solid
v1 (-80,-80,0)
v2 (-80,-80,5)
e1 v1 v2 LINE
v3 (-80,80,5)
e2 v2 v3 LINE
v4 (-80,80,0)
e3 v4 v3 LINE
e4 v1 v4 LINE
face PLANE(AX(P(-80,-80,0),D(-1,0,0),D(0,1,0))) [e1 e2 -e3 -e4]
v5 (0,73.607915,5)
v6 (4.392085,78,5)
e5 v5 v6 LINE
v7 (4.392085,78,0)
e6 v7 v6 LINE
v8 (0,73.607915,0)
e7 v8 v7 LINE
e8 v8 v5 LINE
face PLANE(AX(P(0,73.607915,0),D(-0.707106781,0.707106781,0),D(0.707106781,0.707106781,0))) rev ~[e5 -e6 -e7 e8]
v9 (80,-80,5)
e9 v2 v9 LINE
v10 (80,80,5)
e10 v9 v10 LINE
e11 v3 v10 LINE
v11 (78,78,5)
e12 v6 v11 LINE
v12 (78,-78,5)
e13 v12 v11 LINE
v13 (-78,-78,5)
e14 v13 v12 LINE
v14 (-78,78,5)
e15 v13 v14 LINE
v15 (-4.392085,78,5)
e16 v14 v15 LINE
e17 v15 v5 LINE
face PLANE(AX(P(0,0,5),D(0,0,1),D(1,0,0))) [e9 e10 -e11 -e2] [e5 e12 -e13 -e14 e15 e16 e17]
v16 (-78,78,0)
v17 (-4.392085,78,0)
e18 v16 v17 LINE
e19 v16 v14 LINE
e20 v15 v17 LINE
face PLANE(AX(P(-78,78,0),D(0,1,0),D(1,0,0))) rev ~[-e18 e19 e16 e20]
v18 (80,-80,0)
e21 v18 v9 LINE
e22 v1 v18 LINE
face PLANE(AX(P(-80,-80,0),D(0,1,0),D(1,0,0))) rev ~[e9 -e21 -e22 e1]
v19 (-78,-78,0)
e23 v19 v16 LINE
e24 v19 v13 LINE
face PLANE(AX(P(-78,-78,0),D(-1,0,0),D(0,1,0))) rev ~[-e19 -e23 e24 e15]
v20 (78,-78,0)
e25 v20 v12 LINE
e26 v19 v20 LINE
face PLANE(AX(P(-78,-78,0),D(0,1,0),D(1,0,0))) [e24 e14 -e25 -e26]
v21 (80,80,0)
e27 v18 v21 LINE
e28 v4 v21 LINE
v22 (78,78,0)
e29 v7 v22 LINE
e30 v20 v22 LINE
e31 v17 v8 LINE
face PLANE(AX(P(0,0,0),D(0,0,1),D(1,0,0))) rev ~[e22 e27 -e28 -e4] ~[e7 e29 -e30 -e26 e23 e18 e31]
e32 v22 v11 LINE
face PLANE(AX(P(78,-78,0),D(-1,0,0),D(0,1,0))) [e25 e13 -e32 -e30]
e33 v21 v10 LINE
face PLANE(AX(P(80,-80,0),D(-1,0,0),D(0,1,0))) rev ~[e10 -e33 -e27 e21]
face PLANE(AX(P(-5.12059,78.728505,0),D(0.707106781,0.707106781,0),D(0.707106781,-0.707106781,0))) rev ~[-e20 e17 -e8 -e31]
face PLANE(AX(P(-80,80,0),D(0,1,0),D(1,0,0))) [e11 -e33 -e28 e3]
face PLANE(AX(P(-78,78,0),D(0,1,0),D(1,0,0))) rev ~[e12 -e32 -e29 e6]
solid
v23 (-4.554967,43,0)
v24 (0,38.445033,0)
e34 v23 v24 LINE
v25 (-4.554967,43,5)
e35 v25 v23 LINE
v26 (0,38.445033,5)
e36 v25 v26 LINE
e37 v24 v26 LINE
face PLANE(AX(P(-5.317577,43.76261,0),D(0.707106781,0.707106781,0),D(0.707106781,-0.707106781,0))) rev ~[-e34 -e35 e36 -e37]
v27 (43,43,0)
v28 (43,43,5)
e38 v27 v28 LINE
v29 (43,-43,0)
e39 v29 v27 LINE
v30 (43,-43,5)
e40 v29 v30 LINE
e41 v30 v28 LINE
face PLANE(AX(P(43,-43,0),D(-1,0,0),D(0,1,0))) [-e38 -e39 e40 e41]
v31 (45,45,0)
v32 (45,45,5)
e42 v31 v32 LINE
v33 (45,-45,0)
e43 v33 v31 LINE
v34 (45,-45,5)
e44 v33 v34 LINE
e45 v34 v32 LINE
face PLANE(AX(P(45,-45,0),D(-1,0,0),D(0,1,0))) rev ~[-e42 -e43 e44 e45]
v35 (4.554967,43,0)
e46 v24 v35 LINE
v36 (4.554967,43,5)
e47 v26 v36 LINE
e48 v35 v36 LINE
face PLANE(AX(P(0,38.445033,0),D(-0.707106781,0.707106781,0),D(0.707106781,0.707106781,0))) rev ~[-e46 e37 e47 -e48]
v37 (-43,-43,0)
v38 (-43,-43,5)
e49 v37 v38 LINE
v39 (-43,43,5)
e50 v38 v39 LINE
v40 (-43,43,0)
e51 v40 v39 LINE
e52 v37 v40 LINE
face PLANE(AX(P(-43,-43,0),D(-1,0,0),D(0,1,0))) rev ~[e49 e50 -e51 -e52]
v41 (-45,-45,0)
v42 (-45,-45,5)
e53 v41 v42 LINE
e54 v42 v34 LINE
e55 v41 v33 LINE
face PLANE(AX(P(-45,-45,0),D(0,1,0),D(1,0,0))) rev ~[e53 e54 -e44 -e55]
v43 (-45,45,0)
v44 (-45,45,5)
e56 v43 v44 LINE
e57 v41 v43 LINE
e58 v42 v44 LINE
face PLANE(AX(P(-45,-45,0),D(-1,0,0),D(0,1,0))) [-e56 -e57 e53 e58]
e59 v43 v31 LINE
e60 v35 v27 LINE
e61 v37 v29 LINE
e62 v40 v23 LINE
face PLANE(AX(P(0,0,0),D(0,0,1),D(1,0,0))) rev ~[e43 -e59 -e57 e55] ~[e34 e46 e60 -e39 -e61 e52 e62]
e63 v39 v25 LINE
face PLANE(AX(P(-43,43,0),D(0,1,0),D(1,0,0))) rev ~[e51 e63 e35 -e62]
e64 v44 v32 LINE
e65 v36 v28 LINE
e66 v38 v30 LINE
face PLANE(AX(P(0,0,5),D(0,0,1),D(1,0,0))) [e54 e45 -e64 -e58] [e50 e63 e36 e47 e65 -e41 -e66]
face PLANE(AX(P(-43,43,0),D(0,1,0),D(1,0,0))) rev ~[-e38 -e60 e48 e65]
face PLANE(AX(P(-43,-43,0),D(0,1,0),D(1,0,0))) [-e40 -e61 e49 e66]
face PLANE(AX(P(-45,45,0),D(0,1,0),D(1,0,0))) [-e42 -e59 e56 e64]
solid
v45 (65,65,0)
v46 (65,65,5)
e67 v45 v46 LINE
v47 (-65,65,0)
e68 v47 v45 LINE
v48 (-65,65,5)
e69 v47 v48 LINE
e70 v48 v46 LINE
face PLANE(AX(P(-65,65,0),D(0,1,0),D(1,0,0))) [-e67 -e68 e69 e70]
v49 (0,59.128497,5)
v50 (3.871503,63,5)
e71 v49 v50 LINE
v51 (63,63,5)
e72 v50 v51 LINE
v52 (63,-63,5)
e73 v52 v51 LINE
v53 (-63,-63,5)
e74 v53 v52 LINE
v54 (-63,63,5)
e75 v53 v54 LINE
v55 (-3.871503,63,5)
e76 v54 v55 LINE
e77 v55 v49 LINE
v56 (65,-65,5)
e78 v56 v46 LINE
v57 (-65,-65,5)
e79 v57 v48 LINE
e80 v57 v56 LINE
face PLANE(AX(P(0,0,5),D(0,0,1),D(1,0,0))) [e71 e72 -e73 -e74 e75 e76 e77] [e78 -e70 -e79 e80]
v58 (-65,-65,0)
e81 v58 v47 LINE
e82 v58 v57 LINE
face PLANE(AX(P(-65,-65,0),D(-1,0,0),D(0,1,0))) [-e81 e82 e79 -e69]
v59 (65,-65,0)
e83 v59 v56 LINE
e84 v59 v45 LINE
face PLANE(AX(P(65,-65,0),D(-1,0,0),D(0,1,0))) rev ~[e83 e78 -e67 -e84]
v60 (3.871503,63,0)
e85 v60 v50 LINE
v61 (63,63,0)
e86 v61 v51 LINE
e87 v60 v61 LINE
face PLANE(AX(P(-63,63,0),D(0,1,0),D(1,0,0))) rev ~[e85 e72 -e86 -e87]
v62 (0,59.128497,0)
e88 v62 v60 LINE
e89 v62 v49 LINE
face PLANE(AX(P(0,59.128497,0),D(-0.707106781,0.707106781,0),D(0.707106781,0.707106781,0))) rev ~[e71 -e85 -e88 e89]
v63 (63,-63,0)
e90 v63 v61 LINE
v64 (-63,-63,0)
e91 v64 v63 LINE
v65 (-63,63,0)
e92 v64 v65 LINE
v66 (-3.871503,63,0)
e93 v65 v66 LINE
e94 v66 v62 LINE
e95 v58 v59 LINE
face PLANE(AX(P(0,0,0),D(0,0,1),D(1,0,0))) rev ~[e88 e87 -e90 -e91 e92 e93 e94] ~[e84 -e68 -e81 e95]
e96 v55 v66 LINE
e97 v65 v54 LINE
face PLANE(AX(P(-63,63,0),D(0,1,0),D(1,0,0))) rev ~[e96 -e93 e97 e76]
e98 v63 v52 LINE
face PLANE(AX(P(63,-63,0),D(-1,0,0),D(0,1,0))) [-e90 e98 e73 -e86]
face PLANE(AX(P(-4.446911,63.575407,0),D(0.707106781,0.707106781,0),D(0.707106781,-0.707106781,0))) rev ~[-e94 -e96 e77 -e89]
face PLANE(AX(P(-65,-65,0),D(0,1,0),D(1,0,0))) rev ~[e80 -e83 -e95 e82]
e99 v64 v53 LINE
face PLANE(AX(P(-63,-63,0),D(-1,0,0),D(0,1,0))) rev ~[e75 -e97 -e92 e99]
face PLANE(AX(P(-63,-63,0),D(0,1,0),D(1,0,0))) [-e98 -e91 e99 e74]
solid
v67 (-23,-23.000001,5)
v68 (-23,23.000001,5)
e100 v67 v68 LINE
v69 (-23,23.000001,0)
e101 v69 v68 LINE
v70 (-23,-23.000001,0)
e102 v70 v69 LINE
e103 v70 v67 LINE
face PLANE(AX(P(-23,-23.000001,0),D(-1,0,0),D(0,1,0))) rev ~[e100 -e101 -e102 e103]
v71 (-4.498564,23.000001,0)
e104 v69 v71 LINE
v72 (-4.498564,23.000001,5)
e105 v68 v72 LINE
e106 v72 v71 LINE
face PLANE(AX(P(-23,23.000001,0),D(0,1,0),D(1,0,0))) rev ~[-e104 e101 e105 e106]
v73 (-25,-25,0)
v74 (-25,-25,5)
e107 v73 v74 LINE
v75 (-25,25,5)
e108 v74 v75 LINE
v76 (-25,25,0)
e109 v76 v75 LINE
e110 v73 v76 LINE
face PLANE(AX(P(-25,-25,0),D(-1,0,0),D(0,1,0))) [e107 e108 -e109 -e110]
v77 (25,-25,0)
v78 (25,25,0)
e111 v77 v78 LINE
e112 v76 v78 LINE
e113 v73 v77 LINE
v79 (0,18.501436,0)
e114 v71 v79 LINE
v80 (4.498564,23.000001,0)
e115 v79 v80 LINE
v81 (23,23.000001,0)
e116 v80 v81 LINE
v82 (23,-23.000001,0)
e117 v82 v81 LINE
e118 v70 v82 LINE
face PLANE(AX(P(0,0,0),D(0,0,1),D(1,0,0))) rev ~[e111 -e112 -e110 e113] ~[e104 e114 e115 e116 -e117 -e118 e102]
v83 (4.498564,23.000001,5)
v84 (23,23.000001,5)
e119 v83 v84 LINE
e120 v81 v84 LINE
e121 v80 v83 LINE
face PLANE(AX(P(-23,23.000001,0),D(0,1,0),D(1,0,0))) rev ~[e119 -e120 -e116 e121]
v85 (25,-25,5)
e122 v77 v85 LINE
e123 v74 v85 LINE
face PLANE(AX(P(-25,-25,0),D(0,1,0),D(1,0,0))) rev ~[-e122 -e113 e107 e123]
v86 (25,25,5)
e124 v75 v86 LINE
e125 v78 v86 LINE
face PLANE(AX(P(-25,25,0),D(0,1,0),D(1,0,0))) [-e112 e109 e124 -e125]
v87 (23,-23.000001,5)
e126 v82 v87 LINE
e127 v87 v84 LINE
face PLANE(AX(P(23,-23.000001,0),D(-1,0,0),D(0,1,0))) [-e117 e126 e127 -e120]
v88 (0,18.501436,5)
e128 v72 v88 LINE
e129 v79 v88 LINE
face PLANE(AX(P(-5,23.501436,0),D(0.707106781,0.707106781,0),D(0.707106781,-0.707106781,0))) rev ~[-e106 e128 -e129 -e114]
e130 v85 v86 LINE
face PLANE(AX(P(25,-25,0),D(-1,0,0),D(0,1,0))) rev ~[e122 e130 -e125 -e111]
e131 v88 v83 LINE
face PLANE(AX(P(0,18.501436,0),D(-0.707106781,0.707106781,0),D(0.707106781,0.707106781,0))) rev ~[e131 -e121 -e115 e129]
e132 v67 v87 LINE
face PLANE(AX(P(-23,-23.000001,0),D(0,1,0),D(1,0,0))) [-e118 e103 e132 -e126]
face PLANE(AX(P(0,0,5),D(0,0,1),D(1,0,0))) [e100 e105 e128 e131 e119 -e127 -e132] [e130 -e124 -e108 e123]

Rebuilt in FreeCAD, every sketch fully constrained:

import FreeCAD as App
import Part
import Sketcher

V = App.Vector
Q = App.Units.Quantity

doc = App.newDocument("Part")
body = doc.addObject("PartDesign::Body", "Body")

sketch1 = body.newObject("Sketcher::SketchObject", "Sketch")
sketch1.AttachmentSupport = (doc.getObject("XY_Plane"), [""])
sketch1.MapMode = "FlatFace"
sketch1.addGeometry([
    Part.LineSegment(V(-80, 80, 0), V(-80, -80, 0)),
    Part.LineSegment(V(-80, -80, 0), V(80, -80, 0)),
    Part.LineSegment(V(80, -80, 0), V(80, 80, 0)),
    Part.LineSegment(V(80, 80, 0), V(-80, 80, 0)),
    Part.LineSegment(V(78, -78, 0), V(-78, -78, 0)),
    Part.LineSegment(V(-78, -78, 0), V(-78, 78, 0)),
    Part.LineSegment(V(-78, 78, 0), V(78, 78, 0)),
    Part.LineSegment(V(78, 78, 0), V(78, -78, 0)),
], False)
sketch1.addConstraint([
    Sketcher.Constraint("Coincident", 0, 2, 1, 1),
    Sketcher.Constraint("Coincident", 1, 2, 2, 1),
    Sketcher.Constraint("Coincident", 2, 2, 3, 1),
    Sketcher.Constraint("Coincident", 3, 2, 0, 1),
    Sketcher.Constraint("Coincident", 4, 2, 5, 1),
    Sketcher.Constraint("Coincident", 5, 2, 6, 1),
    Sketcher.Constraint("Coincident", 6, 2, 7, 1),
    Sketcher.Constraint("Coincident", 7, 2, 4, 1),
    Sketcher.Constraint("Vertical", 0),
    Sketcher.Constraint("Horizontal", 1),
    Sketcher.Constraint("Vertical", 2),
    Sketcher.Constraint("Horizontal", 3),
    Sketcher.Constraint("Horizontal", 4),
    Sketcher.Constraint("Vertical", 5),
    Sketcher.Constraint("Horizontal", 6),
    Sketcher.Constraint("Vertical", 7),
    Sketcher.Constraint("Symmetric", 0, 2, 2, 2, -1, 1),
    Sketcher.Constraint("Symmetric", 4, 2, 6, 2, -1, 1),
    Sketcher.Constraint("Equal", 3, 0),
    Sketcher.Constraint("Equal", 6, 5),
    Sketcher.Constraint("DistanceX", 1, 1, 1, 2, Q("160 mm")),
    Sketcher.Constraint("DistanceX", 4, 2, 4, 1, Q("156 mm")),
])
pad1 = body.newObject("PartDesign::Pad", "Pad")
pad1.Profile = sketch1
pad1.Length = 5

sketch2 = body.newObject("Sketcher::SketchObject", "Sketch001")
sketch2.AttachmentSupport = (doc.getObject("XY_Plane"), [""])
sketch2.MapMode = "FlatFace"
sketch2.addGeometry([
    Part.LineSegment(V(0, 78.607915, 0), V(-5.12059, 78.728505, 0)),
    Part.LineSegment(V(-5.12059, 78.728505, 0), V(0, 73.607915, 0)),
    Part.LineSegment(V(0, 73.607915, 0), V(5, 78.607915, 0)),
    Part.LineSegment(V(5, 78.607915, 0), V(0, 78.607915, 0)),
], False)
sketch2.addConstraint([
    Sketcher.Constraint("Coincident", 0, 2, 1, 1),
    Sketcher.Constraint("Coincident", 1, 2, 2, 1),
    Sketcher.Constraint("Coincident", 2, 2, 3, 1),
    Sketcher.Constraint("Coincident", 3, 2, 0, 1),
    Sketcher.Constraint("Horizontal", 3),
    Sketcher.Constraint("PointOnObject", 1, 2, -2),
    Sketcher.Constraint("PointOnObject", 3, 2, -2),
    Sketcher.Constraint("Perpendicular", 1, 2),
    Sketcher.Constraint("DistanceX", 3, 2, 3, 1, Q("5 mm")),
    Sketcher.Constraint("Angle", 1, Q("-45 deg")),
    Sketcher.Constraint("Distance", 0, Q("5.12201 mm")),
    Sketcher.Constraint("DistanceY", -1, 1, 0, 2, Q("78.728505 mm")),
])
pad2 = body.newObject("PartDesign::Pad", "Pad001")
pad2.Profile = sketch2
pad2.Length = 5
body2 = doc.addObject("PartDesign::Body", "Body001")

sketch3 = body2.newObject("Sketcher::SketchObject", "Sketch002")
sketch3.AttachmentSupport = (doc.getObject("XY_Plane001"), [""])
sketch3.MapMode = "FlatFace"
sketch3.addGeometry([
    Part.LineSegment(V(-65, 65, 0), V(-65, -65, 0)),
    Part.LineSegment(V(-65, -65, 0), V(65, -65, 0)),
    Part.LineSegment(V(65, -65, 0), V(65, 65, 0)),
    Part.LineSegment(V(65, 65, 0), V(-65, 65, 0)),
    Part.LineSegment(V(63, -63, 0), V(-63, -63, 0)),
    Part.LineSegment(V(-63, -63, 0), V(-63, 63, 0)),
    Part.LineSegment(V(-63, 63, 0), V(63, 63, 0)),
    Part.LineSegment(V(63, 63, 0), V(63, -63, 0)),
], False)
sketch3.addConstraint([
    Sketcher.Constraint("Coincident", 0, 2, 1, 1),
    Sketcher.Constraint("Coincident", 1, 2, 2, 1),
    Sketcher.Constraint("Coincident", 2, 2, 3, 1),
    Sketcher.Constraint("Coincident", 3, 2, 0, 1),
    Sketcher.Constraint("Coincident", 4, 2, 5, 1),
    Sketcher.Constraint("Coincident", 5, 2, 6, 1),
    Sketcher.Constraint("Coincident", 6, 2, 7, 1),
    Sketcher.Constraint("Coincident", 7, 2, 4, 1),
    Sketcher.Constraint("Vertical", 0),
    Sketcher.Constraint("Horizontal", 1),
    Sketcher.Constraint("Vertical", 2),
    Sketcher.Constraint("Horizontal", 3),
    Sketcher.Constraint("Horizontal", 4),
    Sketcher.Constraint("Vertical", 5),
    Sketcher.Constraint("Horizontal", 6),
    Sketcher.Constraint("Vertical", 7),
    Sketcher.Constraint("Symmetric", 0, 2, 2, 2, -1, 1),
    Sketcher.Constraint("Symmetric", 4, 2, 6, 2, -1, 1),
    Sketcher.Constraint("Equal", 3, 0),
    Sketcher.Constraint("Equal", 6, 5),
    Sketcher.Constraint("DistanceX", 1, 1, 1, 2, Q("130 mm")),
    Sketcher.Constraint("DistanceX", 4, 2, 4, 1, Q("126 mm")),
])
pad3 = body2.newObject("PartDesign::Pad", "Pad002")
pad3.Profile = sketch3
pad3.Length = 5

sketch4 = body2.newObject("Sketcher::SketchObject", "Sketch003")
sketch4.AttachmentSupport = (doc.getObject("XY_Plane001"), [""])
sketch4.MapMode = "FlatFace"
sketch4.addGeometry([
    Part.LineSegment(V(4.446911, 63.575407, 0), V(0, 64.128497, 0)),
    Part.LineSegment(V(0, 64.128497, 0), V(-4.446911, 63.575407, 0)),
    Part.LineSegment(V(-4.446911, 63.575407, 0), V(0, 59.128497, 0)),
    Part.LineSegment(V(0, 59.128497, 0), V(4.446911, 63.575407, 0)),
], False)
sketch4.addConstraint([
    Sketcher.Constraint("Coincident", 0, 2, 1, 1),
    Sketcher.Constraint("Coincident", 1, 2, 2, 1),
    Sketcher.Constraint("Coincident", 2, 2, 3, 1),
    Sketcher.Constraint("Coincident", 3, 2, 0, 1),
    Sketcher.Constraint("Symmetric", 1, 2, 3, 2, -2),
    Sketcher.Constraint("PointOnObject", 0, 2, -2),
    Sketcher.Constraint("PointOnObject", 2, 2, -2),
    Sketcher.Constraint("Perpendicular", 2, 3),
    Sketcher.Constraint("DistanceY", 2, 2, 0, 2, Q("5 mm")),
    Sketcher.Constraint("Distance", 2, Q("6.288881 mm")),
    Sketcher.Constraint("DistanceY", -1, 1, 0, 2, Q("64.128497 mm")),
])
pad4 = body2.newObject("PartDesign::Pad", "Pad003")
pad4.Profile = sketch4
pad4.Length = 5
body3 = doc.addObject("PartDesign::Body", "Body002")

sketch5 = body3.newObject("Sketcher::SketchObject", "Sketch004")
sketch5.AttachmentSupport = (doc.getObject("XY_Plane002"), [""])
sketch5.MapMode = "FlatFace"
sketch5.addGeometry([
    Part.LineSegment(V(-45, 45, 0), V(-45, -45, 0)),
    Part.LineSegment(V(-45, -45, 0), V(45, -45, 0)),
    Part.LineSegment(V(45, -45, 0), V(45, 45, 0)),
    Part.LineSegment(V(45, 45, 0), V(-45, 45, 0)),
    Part.LineSegment(V(43, -43, 0), V(-43, -43, 0)),
    Part.LineSegment(V(-43, -43, 0), V(-43, 43, 0)),
    Part.LineSegment(V(-43, 43, 0), V(43, 43, 0)),
    Part.LineSegment(V(43, 43, 0), V(43, -43, 0)),
], False)
sketch5.addConstraint([
    Sketcher.Constraint("Coincident", 0, 2, 1, 1),
    Sketcher.Constraint("Coincident", 1, 2, 2, 1),
    Sketcher.Constraint("Coincident", 2, 2, 3, 1),
    Sketcher.Constraint("Coincident", 3, 2, 0, 1),
    Sketcher.Constraint("Coincident", 4, 2, 5, 1),
    Sketcher.Constraint("Coincident", 5, 2, 6, 1),
    Sketcher.Constraint("Coincident", 6, 2, 7, 1),
    Sketcher.Constraint("Coincident", 7, 2, 4, 1),
    Sketcher.Constraint("Vertical", 0),
    Sketcher.Constraint("Horizontal", 1),
    Sketcher.Constraint("Vertical", 2),
    Sketcher.Constraint("Horizontal", 3),
    Sketcher.Constraint("Horizontal", 4),
    Sketcher.Constraint("Vertical", 5),
    Sketcher.Constraint("Horizontal", 6),
    Sketcher.Constraint("Vertical", 7),
    Sketcher.Constraint("Symmetric", 0, 2, 2, 2, -1, 1),
    Sketcher.Constraint("Symmetric", 4, 2, 6, 2, -1, 1),
    Sketcher.Constraint("Equal", 3, 0),
    Sketcher.Constraint("Equal", 6, 5),
    Sketcher.Constraint("DistanceX", 1, 1, 1, 2, Q("90 mm")),
    Sketcher.Constraint("DistanceX", 4, 2, 4, 1, Q("86 mm")),
])
pad5 = body3.newObject("PartDesign::Pad", "Pad004")
pad5.Profile = sketch5
pad5.Length = 5

sketch6 = body3.newObject("Sketcher::SketchObject", "Sketch005")
sketch6.AttachmentSupport = (doc.getObject("XY_Plane002"), [""])
sketch6.MapMode = "FlatFace"
sketch6.addGeometry([
    Part.LineSegment(V(0, 43.445033, 0), V(-5.317577, 43.76261, 0)),
    Part.LineSegment(V(-5.317577, 43.76261, 0), V(0, 38.445033, 0)),
    Part.LineSegment(V(0, 38.445033, 0), V(5, 43.445033, 0)),
    Part.LineSegment(V(5, 43.445033, 0), V(0, 43.445033, 0)),
], False)
sketch6.addConstraint([
    Sketcher.Constraint("Coincident", 0, 2, 1, 1),
    Sketcher.Constraint("Coincident", 1, 2, 2, 1),
    Sketcher.Constraint("Coincident", 2, 2, 3, 1),
    Sketcher.Constraint("Coincident", 3, 2, 0, 1),
    Sketcher.Constraint("Horizontal", 3),
    Sketcher.Constraint("PointOnObject", 1, 2, -2),
    Sketcher.Constraint("PointOnObject", 3, 2, -2),
    Sketcher.Constraint("Perpendicular", 1, 2),
    Sketcher.Constraint("DistanceX", 3, 2, 3, 1, Q("5 mm")),
    Sketcher.Constraint("Angle", 1, Q("-45 deg")),
    Sketcher.Constraint("Distance", 0, Q("5.327051 mm")),
    Sketcher.Constraint("DistanceY", -1, 1, 0, 2, Q("43.76261 mm")),
])
pad6 = body3.newObject("PartDesign::Pad", "Pad005")
pad6.Profile = sketch6
pad6.Length = 5
body4 = doc.addObject("PartDesign::Body", "Body003")

sketch7 = body4.newObject("Sketcher::SketchObject", "Sketch006")
sketch7.AttachmentSupport = (doc.getObject("XY_Plane003"), [""])
sketch7.MapMode = "FlatFace"
sketch7.addGeometry([
    Part.LineSegment(V(-25, 25, 0), V(-25, -25, 0)),
    Part.LineSegment(V(-25, -25, 0), V(25, -25, 0)),
    Part.LineSegment(V(25, -25, 0), V(25, 25, 0)),
    Part.LineSegment(V(25, 25, 0), V(-25, 25, 0)),
    Part.LineSegment(V(23, -23.000001, 0), V(-23, -23.000001, 0)),
    Part.LineSegment(V(-23, -23.000001, 0), V(-23, 23.000001, 0)),
    Part.LineSegment(V(-23, 23.000001, 0), V(23, 23.000001, 0)),
    Part.LineSegment(V(23, 23.000001, 0), V(23, -23.000001, 0)),
], False)
sketch7.addConstraint([
    Sketcher.Constraint("Coincident", 0, 2, 1, 1),
    Sketcher.Constraint("Coincident", 1, 2, 2, 1),
    Sketcher.Constraint("Coincident", 2, 2, 3, 1),
    Sketcher.Constraint("Coincident", 3, 2, 0, 1),
    Sketcher.Constraint("Coincident", 4, 2, 5, 1),
    Sketcher.Constraint("Coincident", 5, 2, 6, 1),
    Sketcher.Constraint("Coincident", 6, 2, 7, 1),
    Sketcher.Constraint("Coincident", 7, 2, 4, 1),
    Sketcher.Constraint("Vertical", 0),
    Sketcher.Constraint("Horizontal", 1),
    Sketcher.Constraint("Vertical", 2),
    Sketcher.Constraint("Horizontal", 3),
    Sketcher.Constraint("Horizontal", 4),
    Sketcher.Constraint("Vertical", 5),
    Sketcher.Constraint("Horizontal", 6),
    Sketcher.Constraint("Vertical", 7),
    Sketcher.Constraint("Symmetric", 0, 2, 2, 2, -1, 1),
    Sketcher.Constraint("Symmetric", 4, 2, 6, 2, -1, 1),
    Sketcher.Constraint("Equal", 3, 0),
    Sketcher.Constraint("Equal", 6, 5),
    Sketcher.Constraint("DistanceX", 1, 1, 1, 2, Q("50 mm")),
    Sketcher.Constraint("DistanceX", 4, 2, 4, 1, Q("46 mm")),
])
pad7 = body4.newObject("PartDesign::Pad", "Pad006")
pad7.Profile = sketch7
pad7.Length = 5

sketch8 = body4.newObject("Sketcher::SketchObject", "Sketch007")
sketch8.AttachmentSupport = (doc.getObject("XY_Plane003"), [""])
sketch8.MapMode = "FlatFace"
sketch8.addGeometry([
    Part.LineSegment(V(0, 23.501436, 0), V(-5, 23.501436, 0)),
    Part.LineSegment(V(-5, 23.501436, 0), V(0, 18.501436, 0)),
    Part.LineSegment(V(0, 18.501436, 0), V(4.598043, 23.099479, 0)),
    Part.LineSegment(V(4.598043, 23.099479, 0), V(0, 23.501436, 0)),
], False)
sketch8.addConstraint([
    Sketcher.Constraint("Coincident", 0, 2, 1, 1),
    Sketcher.Constraint("Coincident", 1, 2, 2, 1),
    Sketcher.Constraint("Coincident", 2, 2, 3, 1),
    Sketcher.Constraint("Coincident", 3, 2, 0, 1),
    Sketcher.Constraint("Horizontal", 0),
    Sketcher.Constraint("PointOnObject", 1, 2, -2),
    Sketcher.Constraint("PointOnObject", 3, 2, -2),
    Sketcher.Constraint("Perpendicular", 1, 2),
    Sketcher.Constraint("DistanceX", 0, 2, 0, 1, Q("5 mm")),
    Sketcher.Constraint("Angle", 1, Q("-45 deg")),
    Sketcher.Constraint("Distance", 3, Q("4.615579 mm")),
    Sketcher.Constraint("DistanceY", -1, 1, 2, 2, Q("23.099479 mm")),
])
pad8 = body4.newObject("PartDesign::Pad", "Pad007")
pad8.Profile = sketch8
pad8.Length = 5

doc.recompute()
